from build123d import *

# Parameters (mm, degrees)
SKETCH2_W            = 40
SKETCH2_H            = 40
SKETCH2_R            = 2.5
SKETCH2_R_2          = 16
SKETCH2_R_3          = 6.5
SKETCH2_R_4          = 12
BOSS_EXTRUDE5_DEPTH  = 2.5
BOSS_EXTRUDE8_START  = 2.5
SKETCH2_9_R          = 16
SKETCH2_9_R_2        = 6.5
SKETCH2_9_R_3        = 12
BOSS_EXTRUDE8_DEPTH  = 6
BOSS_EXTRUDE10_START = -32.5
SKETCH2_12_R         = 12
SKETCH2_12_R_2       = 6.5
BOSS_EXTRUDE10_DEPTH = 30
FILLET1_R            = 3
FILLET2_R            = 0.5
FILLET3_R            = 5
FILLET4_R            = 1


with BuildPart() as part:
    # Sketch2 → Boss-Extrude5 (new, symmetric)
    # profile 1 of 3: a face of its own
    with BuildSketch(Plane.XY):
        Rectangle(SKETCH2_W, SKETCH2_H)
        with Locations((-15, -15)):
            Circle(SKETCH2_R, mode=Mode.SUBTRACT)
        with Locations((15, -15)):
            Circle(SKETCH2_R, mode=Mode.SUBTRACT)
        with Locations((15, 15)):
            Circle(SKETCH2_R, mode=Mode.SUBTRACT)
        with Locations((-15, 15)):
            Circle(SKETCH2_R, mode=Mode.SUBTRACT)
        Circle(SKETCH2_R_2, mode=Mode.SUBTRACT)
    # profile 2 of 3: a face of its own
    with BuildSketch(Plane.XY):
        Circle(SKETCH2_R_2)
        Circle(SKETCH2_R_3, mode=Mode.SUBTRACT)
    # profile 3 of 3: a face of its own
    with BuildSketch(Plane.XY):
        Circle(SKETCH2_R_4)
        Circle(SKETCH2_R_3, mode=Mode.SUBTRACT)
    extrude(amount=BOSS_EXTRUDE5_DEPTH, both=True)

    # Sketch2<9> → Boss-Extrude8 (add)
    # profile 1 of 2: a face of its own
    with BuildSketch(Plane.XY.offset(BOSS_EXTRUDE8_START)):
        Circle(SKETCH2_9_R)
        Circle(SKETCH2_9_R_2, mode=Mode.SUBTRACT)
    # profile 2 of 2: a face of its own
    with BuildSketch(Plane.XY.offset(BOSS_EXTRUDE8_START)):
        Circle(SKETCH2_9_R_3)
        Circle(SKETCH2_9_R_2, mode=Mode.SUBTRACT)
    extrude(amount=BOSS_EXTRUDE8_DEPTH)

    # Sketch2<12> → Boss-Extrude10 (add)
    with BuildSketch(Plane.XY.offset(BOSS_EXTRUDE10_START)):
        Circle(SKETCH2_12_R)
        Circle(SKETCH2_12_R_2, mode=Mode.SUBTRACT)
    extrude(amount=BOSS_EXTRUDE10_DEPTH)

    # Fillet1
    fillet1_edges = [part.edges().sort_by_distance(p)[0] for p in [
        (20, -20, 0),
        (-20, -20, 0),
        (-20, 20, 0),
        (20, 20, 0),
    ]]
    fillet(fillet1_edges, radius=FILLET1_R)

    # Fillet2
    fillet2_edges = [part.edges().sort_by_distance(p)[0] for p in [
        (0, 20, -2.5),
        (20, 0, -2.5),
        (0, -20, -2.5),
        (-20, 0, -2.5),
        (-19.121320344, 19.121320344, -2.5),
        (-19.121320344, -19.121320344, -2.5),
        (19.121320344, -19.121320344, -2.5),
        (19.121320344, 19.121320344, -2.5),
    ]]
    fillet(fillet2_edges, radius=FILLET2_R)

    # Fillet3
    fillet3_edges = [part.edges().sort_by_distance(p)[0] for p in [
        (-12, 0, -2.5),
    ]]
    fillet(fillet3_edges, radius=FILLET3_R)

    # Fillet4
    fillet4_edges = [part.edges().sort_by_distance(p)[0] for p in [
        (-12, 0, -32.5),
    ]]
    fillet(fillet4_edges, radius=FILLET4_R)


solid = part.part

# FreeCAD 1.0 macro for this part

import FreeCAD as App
import Part
import Sketcher

V = App.Vector
Q = App.Units.Quantity


def edges_at(feature, points):
    """Names of the edges that pass closest to the given points."""
    edges = feature.Shape.Edges
    near = lambda p: min(range(len(edges)), key=lambda i: edges[i].distToShape(Part.Vertex(*p))[0])
    return sorted({f"Edge{near(p) + 1}" for p in points})


def add_polygon(sketch, points):
    """Adds a closed chain of lines whose ends are joined by coincident constraints."""
    first, n = sketch.GeometryCount, len(points)
    for a, b in zip(points, points[1:] + points[:1]):
        sketch.addGeometry(Part.LineSegment(App.Vector(*a, 0), App.Vector(*b, 0)), False)
    for i in range(n):
        sketch.addConstraint(Sketcher.Constraint("Coincident", first + i, 2, first + (i + 1) % n, 1))

doc = App.newDocument("Part")
body = doc.addObject("PartDesign::Body", "Body")

# Sketch on XY plane
sketch1 = doc.addObject("Sketcher::SketchObject", "Sketch")
body.addObject(sketch1)
sketch1.AttachmentSupport = (doc.XY_Plane, [""])
sketch1.MapMode = "FlatFace"
add_polygon(sketch1, [(-20, 20), (-20, -20), (20, -20), (20, 20)])  # lines 0-3
sketch1.addGeometry(Part.Circle(V(-15, -15, 0), V(0, 0, 1), 2.5), False)  # 4
sketch1.addGeometry(Part.Circle(V(15, -15, 0), V(0, 0, 1), 2.5), False)  # 5
sketch1.addGeometry(Part.Circle(V(-15, 15, 0), V(0, 0, 1), 2.5), False)  # 6
sketch1.addGeometry(Part.Circle(V(15, 15, 0), V(0, 0, 1), 2.5), False)  # 7
sketch1.addGeometry(Part.Circle(V(0, 0, 0), V(0, 0, 1), 6.5), False)  # 8
sketch1.addConstraint([
    Sketcher.Constraint("Vertical", 0),
    Sketcher.Constraint("Horizontal", 1),
    Sketcher.Constraint("Vertical", 2),
    Sketcher.Constraint("Horizontal", 3),
    Sketcher.Constraint("Coincident", 8, 3, -1, 1),
    Sketcher.Constraint("Equal", 4, 5),
    Sketcher.Constraint("Equal", 5, 6),
    Sketcher.Constraint("Equal", 6, 7),
    Sketcher.Constraint("Symmetric", 5, 3, 6, 3, -1, 1),
    Sketcher.Constraint("Symmetric", 4, 3, 7, 3, -1, 1),
    Sketcher.Constraint("Symmetric", 0, 2, 2, 2, -1, 1),
    Sketcher.Constraint("Symmetric", 4, 3, 5, 3, -2),
    Sketcher.Constraint("Equal", 3, 0),
    Sketcher.Constraint("Diameter", 4, Q("5 mm")),
    Sketcher.Constraint("Diameter", 8, Q("13 mm")),
    Sketcher.Constraint("DistanceX", 1, 1, 1, 2, Q("40 mm")),
    Sketcher.Constraint("DistanceX", 4, 3, -1, 1, Q("15 mm")),
    Sketcher.Constraint("DistanceY", 4, 3, -1, 1, Q("15 mm")),
])
pad1 = doc.addObject("PartDesign::Pad", "Pad")
body.addObject(pad1)
pad1.Profile = sketch1
pad1.Length = 5
pad1.Midplane = True

# Sketch on XY plane
sketch2 = doc.addObject("Sketcher::SketchObject", "Sketch001")
body.addObject(sketch2)
sketch2.AttachmentSupport = (doc.XY_Plane, [""])
sketch2.MapMode = "FlatFace"
sketch2.AttachmentOffset = App.Placement(V(0, 0, 2.5), App.Rotation())
sketch2.addGeometry([
    Part.Circle(V(0, 0, 0), V(0, 0, 1), 16),
    Part.Circle(V(0, 0, 0), V(0, 0, 1), 6),
], False)
sketch2.addConstraint([
    Sketcher.Constraint("Coincident", 0, 3, -1, 1),
    Sketcher.Constraint("Coincident", 1, 3, -1, 1),
    Sketcher.Constraint("Diameter", 0, Q("32 mm")),
    Sketcher.Constraint("Diameter", 1, Q("13 mm")),
])
pad2 = doc.addObject("PartDesign::Pad", "Pad001")
body.addObject(pad2)
pad2.Profile = sketch2
pad2.Length = 6

# Sketch on XY plane
sketch3 = doc.addObject("Sketcher::SketchObject", "Sketch002")
body.addObject(sketch3)
sketch3.AttachmentSupport = (doc.XY_Plane, [""])
sketch3.MapMode = "FlatFace"
sketch3.AttachmentOffset = App.Placement(V(0, 0, -32.5), App.Rotation())
sketch3.addGeometry([
    Part.Circle(V(0, 0, 0), V(0, 0, 1), 12),
    Part.Circle(V(0, 0, 0), V(0, 0, 1), 6),
], False)
sketch3.addConstraint([
    Sketcher.Constraint("Coincident", 0, 3, -1, 1),
    Sketcher.Constraint("Coincident", 1, 3, -1, 1),
    Sketcher.Constraint("Diameter", 0, Q("24 mm")),
    Sketcher.Constraint("Diameter", 1, Q("13 mm")),
])
pad3 = doc.addObject("PartDesign::Pad", "Pad002")
body.addObject(pad3)
pad3.Profile = sketch3
pad3.Length = 30
doc.recompute()

fillet = doc.addObject("PartDesign::Fillet", "Fillet")
body.addObject(fillet)
fillet.Base = (pad3, edges_at(pad3, [
    (20, -20, 0),
    (-20, -20, 0),
    (-20, 20, 0),
    (20, 20, 0),
]))
fillet.Radius = 3
doc.recompute()

fillet2 = doc.addObject("PartDesign::Fillet", "Fillet001")
body.addObject(fillet2)
fillet2.Base = (fillet, edges_at(fillet, [
    (0, 20, -2.5),
    (20, 0, -2.5),
    (0, -20, -2.5),
    (-20, 0, -2.5),
    (-19.121, 19.121, -2.5),
    (-19.121, -19.121, -2.5),
    (19.121, -19.121, -2.5),
    (19.121, 19.121, -2.5),
]))
fillet2.Radius = 0.5
doc.recompute()

fillet3 = doc.addObject("PartDesign::Fillet", "Fillet002")
body.addObject(fillet3)
fillet3.Base = (fillet2, edges_at(fillet2, [(-12, 0, -2.5)]))
fillet3.Radius = 5
doc.recompute()

fillet4 = doc.addObject("PartDesign::Fillet", "Fillet003")
body.addObject(fillet4)
fillet4.Base = (fillet3, edges_at(fillet3, [(-12, 0, -32.5)]))
fillet4.Radius = 1

doc.recompute()
